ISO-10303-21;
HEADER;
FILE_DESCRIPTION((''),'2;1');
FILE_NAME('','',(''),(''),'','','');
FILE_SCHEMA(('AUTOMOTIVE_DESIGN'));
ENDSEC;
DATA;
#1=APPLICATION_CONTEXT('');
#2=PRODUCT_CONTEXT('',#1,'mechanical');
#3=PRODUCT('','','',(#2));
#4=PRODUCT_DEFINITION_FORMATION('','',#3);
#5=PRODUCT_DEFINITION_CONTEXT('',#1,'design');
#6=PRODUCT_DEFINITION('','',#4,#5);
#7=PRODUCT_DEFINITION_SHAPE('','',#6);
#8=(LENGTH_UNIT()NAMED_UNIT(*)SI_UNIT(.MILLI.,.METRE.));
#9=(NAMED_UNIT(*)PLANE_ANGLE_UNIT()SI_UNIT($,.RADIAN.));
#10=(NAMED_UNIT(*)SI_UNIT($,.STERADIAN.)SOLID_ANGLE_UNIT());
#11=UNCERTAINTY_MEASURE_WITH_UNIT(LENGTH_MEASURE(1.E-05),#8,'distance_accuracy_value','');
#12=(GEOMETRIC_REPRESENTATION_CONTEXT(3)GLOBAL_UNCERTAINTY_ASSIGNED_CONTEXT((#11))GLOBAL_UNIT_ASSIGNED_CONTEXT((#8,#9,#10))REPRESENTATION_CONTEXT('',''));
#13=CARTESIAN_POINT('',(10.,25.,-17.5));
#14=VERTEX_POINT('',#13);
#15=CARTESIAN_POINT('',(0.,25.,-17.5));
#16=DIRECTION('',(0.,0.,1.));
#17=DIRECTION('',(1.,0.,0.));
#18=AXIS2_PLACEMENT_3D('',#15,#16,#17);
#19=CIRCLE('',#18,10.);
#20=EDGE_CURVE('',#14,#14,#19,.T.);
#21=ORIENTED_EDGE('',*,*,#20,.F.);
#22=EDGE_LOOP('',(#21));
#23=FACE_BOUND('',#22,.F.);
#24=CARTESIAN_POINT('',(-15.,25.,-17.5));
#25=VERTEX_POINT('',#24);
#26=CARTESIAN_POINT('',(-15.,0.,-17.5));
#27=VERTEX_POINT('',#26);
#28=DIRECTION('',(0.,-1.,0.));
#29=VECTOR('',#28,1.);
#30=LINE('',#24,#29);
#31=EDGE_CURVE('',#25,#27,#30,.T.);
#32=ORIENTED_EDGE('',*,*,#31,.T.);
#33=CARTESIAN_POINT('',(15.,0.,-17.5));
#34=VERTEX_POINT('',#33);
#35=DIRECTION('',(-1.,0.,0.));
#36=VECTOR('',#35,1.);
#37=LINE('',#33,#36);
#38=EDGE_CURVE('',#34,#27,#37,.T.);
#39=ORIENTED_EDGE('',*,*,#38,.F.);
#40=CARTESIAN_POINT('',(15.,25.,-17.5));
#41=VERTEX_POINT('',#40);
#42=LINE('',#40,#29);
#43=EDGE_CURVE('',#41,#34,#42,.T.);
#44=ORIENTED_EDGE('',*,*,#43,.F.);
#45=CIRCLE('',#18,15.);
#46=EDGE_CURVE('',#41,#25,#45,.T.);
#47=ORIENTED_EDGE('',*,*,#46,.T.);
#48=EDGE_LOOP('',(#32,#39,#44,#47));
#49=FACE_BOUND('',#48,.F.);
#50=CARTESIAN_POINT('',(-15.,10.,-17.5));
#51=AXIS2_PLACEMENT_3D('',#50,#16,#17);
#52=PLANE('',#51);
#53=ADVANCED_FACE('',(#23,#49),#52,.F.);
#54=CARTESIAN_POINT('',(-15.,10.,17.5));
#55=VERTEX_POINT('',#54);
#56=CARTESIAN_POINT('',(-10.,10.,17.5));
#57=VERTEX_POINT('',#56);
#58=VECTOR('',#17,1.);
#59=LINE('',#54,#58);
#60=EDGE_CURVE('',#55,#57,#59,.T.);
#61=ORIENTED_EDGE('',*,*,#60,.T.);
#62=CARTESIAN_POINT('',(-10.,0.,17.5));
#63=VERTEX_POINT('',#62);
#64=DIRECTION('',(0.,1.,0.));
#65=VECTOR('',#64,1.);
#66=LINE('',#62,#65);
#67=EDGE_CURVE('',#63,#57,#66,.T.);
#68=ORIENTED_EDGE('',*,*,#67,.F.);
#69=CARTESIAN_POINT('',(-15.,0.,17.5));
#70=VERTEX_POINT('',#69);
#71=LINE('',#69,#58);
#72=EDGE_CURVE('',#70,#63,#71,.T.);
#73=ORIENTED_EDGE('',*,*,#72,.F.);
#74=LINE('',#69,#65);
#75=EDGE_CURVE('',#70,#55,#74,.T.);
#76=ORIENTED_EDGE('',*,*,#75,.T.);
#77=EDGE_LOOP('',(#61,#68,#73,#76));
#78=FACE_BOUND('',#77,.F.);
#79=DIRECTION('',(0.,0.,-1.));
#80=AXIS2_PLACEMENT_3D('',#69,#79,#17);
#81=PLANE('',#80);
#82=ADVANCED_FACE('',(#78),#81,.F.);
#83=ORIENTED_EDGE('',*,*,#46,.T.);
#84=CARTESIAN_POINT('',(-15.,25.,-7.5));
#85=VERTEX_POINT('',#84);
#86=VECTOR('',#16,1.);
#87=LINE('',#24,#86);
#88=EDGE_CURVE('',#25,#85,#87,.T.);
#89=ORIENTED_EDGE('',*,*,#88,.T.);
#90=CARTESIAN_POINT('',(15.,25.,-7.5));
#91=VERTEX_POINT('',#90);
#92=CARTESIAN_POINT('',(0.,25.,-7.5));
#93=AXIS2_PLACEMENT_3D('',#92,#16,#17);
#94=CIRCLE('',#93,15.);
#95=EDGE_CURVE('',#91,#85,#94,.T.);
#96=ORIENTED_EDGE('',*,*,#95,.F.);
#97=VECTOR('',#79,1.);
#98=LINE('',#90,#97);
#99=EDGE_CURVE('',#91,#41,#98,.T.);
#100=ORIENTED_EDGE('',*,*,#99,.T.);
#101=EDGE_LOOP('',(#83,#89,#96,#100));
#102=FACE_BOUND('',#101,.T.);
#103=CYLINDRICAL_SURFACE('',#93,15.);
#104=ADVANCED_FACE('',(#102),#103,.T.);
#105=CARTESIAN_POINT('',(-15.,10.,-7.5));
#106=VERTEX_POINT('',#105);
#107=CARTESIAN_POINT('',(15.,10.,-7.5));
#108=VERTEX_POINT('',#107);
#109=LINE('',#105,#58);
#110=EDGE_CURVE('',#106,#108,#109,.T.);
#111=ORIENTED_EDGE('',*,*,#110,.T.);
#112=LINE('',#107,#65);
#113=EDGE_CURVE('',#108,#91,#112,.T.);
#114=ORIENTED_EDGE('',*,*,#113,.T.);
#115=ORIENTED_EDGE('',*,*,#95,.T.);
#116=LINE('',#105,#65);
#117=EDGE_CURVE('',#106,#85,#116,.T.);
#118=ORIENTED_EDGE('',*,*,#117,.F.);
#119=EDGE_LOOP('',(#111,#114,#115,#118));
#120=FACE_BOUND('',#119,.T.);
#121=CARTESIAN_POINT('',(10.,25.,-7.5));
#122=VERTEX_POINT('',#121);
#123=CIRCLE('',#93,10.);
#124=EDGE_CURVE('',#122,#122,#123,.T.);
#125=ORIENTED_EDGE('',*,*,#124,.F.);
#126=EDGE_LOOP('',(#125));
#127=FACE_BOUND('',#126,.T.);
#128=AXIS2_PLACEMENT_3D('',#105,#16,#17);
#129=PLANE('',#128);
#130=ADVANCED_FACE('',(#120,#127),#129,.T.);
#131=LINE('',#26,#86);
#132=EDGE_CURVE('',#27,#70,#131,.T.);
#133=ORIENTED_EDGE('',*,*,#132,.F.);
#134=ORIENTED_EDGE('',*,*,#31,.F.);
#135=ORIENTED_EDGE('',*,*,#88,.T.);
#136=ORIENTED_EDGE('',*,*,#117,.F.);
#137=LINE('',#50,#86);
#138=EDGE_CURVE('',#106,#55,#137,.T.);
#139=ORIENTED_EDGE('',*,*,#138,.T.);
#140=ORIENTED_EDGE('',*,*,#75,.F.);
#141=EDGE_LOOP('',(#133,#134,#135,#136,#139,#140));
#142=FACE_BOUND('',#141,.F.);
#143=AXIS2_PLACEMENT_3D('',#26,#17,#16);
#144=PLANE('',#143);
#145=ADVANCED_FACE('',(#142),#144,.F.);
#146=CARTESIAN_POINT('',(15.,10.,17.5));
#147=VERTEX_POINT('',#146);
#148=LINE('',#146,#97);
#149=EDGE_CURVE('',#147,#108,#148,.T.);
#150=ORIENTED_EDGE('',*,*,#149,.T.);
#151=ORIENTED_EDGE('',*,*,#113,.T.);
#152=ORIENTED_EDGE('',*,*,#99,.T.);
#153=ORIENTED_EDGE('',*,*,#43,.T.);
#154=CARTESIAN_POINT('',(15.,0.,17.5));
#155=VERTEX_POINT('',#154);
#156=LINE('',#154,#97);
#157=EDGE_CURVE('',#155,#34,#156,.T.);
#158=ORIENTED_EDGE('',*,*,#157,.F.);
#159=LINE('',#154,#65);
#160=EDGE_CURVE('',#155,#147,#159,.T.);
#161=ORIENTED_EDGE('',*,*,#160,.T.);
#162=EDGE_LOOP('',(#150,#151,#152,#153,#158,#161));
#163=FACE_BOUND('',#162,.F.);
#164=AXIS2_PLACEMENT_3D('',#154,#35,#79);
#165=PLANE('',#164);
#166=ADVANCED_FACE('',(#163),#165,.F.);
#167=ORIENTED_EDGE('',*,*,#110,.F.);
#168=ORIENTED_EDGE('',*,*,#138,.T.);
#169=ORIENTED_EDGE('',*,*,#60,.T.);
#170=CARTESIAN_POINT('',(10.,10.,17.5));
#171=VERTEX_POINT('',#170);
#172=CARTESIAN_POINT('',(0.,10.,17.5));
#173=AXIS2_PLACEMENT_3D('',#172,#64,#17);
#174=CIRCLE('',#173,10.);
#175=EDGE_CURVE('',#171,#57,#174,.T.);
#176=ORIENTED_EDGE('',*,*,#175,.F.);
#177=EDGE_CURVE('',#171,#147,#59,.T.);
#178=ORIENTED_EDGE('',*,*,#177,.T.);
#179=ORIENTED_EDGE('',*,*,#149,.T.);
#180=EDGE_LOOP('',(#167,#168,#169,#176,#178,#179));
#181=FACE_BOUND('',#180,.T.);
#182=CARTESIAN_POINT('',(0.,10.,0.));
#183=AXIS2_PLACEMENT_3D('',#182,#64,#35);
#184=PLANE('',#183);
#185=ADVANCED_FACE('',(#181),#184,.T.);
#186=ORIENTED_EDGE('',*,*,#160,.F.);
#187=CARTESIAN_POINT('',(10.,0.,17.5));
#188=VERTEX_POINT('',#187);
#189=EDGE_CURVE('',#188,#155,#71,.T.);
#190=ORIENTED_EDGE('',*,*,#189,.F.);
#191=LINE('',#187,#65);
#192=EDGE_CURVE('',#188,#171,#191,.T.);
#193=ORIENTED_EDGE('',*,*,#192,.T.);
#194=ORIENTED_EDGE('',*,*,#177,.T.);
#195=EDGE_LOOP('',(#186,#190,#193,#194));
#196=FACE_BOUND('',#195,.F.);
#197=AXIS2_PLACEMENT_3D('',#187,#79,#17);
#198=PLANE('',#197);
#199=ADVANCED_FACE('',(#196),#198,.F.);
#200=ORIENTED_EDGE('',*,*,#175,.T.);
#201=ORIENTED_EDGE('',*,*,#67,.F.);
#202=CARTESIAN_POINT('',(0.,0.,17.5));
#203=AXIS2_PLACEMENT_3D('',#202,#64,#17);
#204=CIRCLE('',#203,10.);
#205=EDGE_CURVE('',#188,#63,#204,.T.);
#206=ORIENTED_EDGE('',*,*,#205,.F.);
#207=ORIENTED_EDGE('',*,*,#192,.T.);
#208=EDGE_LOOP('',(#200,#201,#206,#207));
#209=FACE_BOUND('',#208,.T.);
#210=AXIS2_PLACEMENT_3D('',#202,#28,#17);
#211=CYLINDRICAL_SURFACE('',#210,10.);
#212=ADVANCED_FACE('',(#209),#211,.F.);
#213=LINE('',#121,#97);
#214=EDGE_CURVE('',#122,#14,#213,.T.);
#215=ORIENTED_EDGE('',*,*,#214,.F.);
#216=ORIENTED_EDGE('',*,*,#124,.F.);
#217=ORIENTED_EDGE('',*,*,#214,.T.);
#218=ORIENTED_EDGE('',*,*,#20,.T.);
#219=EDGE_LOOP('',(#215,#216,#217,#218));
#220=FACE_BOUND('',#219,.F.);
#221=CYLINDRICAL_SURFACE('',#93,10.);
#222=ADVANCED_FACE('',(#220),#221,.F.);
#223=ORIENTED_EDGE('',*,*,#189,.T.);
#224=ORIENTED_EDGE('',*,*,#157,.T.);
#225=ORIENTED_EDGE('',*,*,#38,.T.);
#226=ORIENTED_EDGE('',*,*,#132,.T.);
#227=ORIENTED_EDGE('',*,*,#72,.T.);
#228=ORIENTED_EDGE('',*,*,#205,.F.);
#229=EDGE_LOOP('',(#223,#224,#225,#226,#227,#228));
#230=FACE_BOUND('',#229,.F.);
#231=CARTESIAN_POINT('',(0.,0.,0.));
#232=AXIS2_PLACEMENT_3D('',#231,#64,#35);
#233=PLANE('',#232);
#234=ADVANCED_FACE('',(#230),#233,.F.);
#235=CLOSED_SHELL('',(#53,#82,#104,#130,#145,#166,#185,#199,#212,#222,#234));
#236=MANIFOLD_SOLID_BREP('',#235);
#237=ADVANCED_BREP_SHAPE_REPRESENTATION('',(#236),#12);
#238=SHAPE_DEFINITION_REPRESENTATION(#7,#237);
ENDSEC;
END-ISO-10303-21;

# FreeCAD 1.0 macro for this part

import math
import FreeCAD as App
import Part
import Sketcher

V = App.Vector
Q = App.Units.Quantity


def add_polygon(sketch, points):
    """Adds a closed chain of lines whose ends are joined by coincident constraints."""
    first, n = sketch.GeometryCount, len(points)
    for a, b in zip(points, points[1:] + points[:1]):
        sketch.addGeometry(Part.LineSegment(App.Vector(*a, 0), App.Vector(*b, 0)), False)
    for i in range(n):
        sketch.addConstraint(Sketcher.Constraint("Coincident", first + i, 2, first + (i + 1) % n, 1))

doc = App.newDocument("Part")
body = doc.addObject("PartDesign::Body", "Body")

sketch1 = body.newObject("Sketcher::SketchObject", "Sketch")
sketch1.AttachmentSupport = (doc.getObject("XZ_Plane"), [""])
sketch1.MapMode = "FlatFace"
sketch1.addGeometry(Part.LineSegment(V(-15, -18, 0), V(-15, 18, 0)), False)
sketch1.addGeometry(Part.LineSegment(V(-15, 18, 0), V(-10, 18, 0)), False)
sketch1.addGeometry(Part.ArcOfCircle(Part.Circle(V(0, 18, 0), V(0, 0, 1), 10), math.radians(180), math.radians(360)), False)
sketch1.addGeometry(Part.LineSegment(V(10, 18, 0), V(15, 18, 0)), False)
sketch1.addGeometry(Part.LineSegment(V(15, 18, 0), V(15, -18, 0)), False)
sketch1.addGeometry(Part.LineSegment(V(15, -18, 0), V(-15, -18, 0)), False)
sketch1.addConstraint(Sketcher.Constraint("Coincident", 0, 2, 1, 1))
sketch1.addConstraint(Sketcher.Constraint("Coincident", 1, 2, 2, 1))
sketch1.addConstraint(Sketcher.Constraint("Coincident", 2, 2, 3, 1))
sketch1.addConstraint(Sketcher.Constraint("Coincident", 3, 2, 4, 1))
sketch1.addConstraint(Sketcher.Constraint("Coincident", 4, 2, 5, 1))
sketch1.addConstraint(Sketcher.Constraint("Coincident", 5, 2, 0, 1))
sketch1.addConstraint(Sketcher.Constraint("Vertical", 0))
sketch1.addConstraint(Sketcher.Constraint("Horizontal", 1))
sketch1.addConstraint(Sketcher.Constraint("Horizontal", 3))
sketch1.addConstraint(Sketcher.Constraint("Vertical", 4))
sketch1.addConstraint(Sketcher.Constraint("Horizontal", 5))
sketch1.addConstraint(Sketcher.Constraint("Symmetric", 0, 2, 4, 2, -1, 1))
sketch1.addConstraint(Sketcher.Constraint("Symmetric", 1, 2, 2, 2, -2))
sketch1.addConstraint(Sketcher.Constraint("Horizontal", 2, 3, 0, 2))
sketch1.addConstraint(Sketcher.Constraint("Radius", 2, Q("10 mm")))
sketch1.addConstraint(Sketcher.Constraint("DistanceX", 5, 2, 5, 1, Q("30 mm")))
sketch1.addConstraint(Sketcher.Constraint("DistanceY", 0, 1, 0, 2, Q("35 mm")))
pad1 = body.newObject("PartDesign::Pad", "Pad")
pad1.Profile = sketch1
pad1.Length = 10
pad1.Reversed = True

sketch2 = body.newObject("Sketcher::SketchObject", "Sketch001")
sketch2.AttachmentSupport = (doc.getObject("XZ_Plane"), [""])
sketch2.MapMode = "FlatFace"
sketch2.AttachmentOffset = App.Placement(V(0, 0, -10), App.Rotation())
add_polygon(sketch2, [(15, -8), (15, -18), (-15, -18), (-15, -8)])
sketch2.addConstraint(Sketcher.Constraint("Vertical", 0))
sketch2.addConstraint(Sketcher.Constraint("Horizontal", 1))
sketch2.addConstraint(Sketcher.Constraint("Vertical", 2))
sketch2.addConstraint(Sketcher.Constraint("Horizontal", 3))
sketch2.addConstraint(Sketcher.Constraint("DistanceX", 1, 2, 1, 1, Q("30 mm")))
sketch2.addConstraint(Sketcher.Constraint("DistanceY", 0, 2, 0, 1, Q("10 mm")))
sketch2.addConstraint(Sketcher.Constraint("DistanceX", -1, 1, 0, 2, Q("15 mm")))
sketch2.addConstraint(Sketcher.Constraint("DistanceY", 0, 2, -1, 1, Q("17.5 mm")))
pad2 = body.newObject("PartDesign::Pad", "Pad001")
pad2.Profile = sketch2
pad2.Length = 15
pad2.Reversed = True

sketch3 = body.newObject("Sketcher::SketchObject", "Sketch002")
sketch3.AttachmentSupport = (doc.getObject("XY_Plane"), [""])
sketch3.MapMode = "FlatFace"
sketch3.AttachmentOffset = App.Placement(V(0, 0, -7.5), App.Rotation())
sketch3.addGeometry(Part.ArcOfCircle(Part.Circle(V(0, 25, 0), V(0, 0, 1), 15), math.radians(0), math.radians(180)), False)
sketch3.addGeometry(Part.LineSegment(V(-15, 25, 0), V(15, 25, 0)), False)
sketch3.addConstraint(Sketcher.Constraint("Coincident", 0, 1, 1, 2))
sketch3.addConstraint(Sketcher.Constraint("Coincident", 1, 1, 0, 2))
sketch3.addConstraint(Sketcher.Constraint("Horizontal", 1))
sketch3.addConstraint(Sketcher.Constraint("PointOnObject", 0, 3, -2))
sketch3.addConstraint(Sketcher.Constraint("Radius", 0, Q("15 mm")))
sketch3.addConstraint(Sketcher.Constraint("DistanceY", -1, 1, 0, 3, Q("25 mm")))
sketch3.addConstraint(Sketcher.Constraint("DistanceY", -1, 1, 0, 1, Q("25 mm")))
pad3 = body.newObject("PartDesign::Pad", "Pad002")
pad3.Profile = sketch3
pad3.Length = 10
pad3.Reversed = True

sketch4 = body.newObject("Sketcher::SketchObject", "Sketch003")
sketch4.AttachmentSupport = (doc.getObject("XY_Plane"), [""])
sketch4.MapMode = "FlatFace"
sketch4.AttachmentOffset = App.Placement(V(0, 0, -7.5), App.Rotation())
sketch4.addGeometry(Part.Circle(V(0, 25, 0), V(0, 0, 1), 10), False)
sketch4.addConstraint(Sketcher.Constraint("PointOnObject", 0, 3, -2))
sketch4.addConstraint(Sketcher.Constraint("Diameter", 0, Q("20 mm")))
sketch4.addConstraint(Sketcher.Constraint("DistanceY", -1, 1, 0, 3, Q("25 mm")))
pocket1 = body.newObject("PartDesign::Pocket", "Pocket")
pocket1.Profile = sketch4
pocket1.Length = 10

doc.recompute()
